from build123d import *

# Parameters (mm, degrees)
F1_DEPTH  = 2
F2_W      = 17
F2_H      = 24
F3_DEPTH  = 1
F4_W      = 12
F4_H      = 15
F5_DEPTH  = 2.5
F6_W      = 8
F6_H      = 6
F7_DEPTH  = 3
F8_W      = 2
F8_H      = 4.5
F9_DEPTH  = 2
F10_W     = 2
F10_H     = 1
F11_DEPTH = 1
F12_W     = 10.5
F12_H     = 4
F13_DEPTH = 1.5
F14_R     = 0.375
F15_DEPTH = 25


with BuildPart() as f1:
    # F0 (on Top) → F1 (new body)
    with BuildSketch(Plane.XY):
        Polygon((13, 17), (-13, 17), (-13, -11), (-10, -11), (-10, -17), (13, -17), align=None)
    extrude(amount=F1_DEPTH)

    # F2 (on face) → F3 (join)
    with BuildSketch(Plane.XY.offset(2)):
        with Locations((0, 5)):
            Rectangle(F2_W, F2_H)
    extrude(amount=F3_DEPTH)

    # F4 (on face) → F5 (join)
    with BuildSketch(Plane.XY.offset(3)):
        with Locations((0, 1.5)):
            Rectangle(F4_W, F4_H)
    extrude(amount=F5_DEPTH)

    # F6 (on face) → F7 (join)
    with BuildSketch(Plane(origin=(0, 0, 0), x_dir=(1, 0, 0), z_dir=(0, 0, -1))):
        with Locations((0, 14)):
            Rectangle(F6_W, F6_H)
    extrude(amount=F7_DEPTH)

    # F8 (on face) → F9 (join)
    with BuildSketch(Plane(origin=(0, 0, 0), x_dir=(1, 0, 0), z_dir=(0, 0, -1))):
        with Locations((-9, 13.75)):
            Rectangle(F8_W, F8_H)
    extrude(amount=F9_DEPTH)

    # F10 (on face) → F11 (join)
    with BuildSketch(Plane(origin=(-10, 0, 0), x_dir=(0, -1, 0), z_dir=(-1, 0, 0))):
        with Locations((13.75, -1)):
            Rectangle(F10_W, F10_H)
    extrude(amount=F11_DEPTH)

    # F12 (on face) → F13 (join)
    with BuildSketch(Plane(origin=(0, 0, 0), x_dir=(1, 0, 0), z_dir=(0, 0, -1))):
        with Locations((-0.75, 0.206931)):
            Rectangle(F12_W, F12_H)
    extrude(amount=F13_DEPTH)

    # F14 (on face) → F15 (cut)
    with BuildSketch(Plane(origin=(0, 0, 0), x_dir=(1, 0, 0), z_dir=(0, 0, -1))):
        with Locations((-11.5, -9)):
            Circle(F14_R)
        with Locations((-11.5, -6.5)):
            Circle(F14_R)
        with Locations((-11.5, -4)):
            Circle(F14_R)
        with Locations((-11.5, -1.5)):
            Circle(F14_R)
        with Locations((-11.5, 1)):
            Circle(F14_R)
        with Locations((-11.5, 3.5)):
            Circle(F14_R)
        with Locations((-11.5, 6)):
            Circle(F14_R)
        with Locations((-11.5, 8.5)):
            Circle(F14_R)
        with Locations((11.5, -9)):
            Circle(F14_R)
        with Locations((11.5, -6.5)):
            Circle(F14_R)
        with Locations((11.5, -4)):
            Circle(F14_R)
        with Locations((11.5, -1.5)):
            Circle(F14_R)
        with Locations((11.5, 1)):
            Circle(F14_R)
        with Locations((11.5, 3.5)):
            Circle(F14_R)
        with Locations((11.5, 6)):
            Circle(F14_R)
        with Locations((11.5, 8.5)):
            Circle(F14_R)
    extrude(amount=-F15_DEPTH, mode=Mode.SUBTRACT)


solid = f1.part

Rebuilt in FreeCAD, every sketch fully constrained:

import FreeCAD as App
import Part
import Sketcher
Q = App.Units.Quantity


def add_polygon(sketch, points):
    """Adds a closed chain of lines whose ends are joined by coincident constraints."""
    first, n = sketch.GeometryCount, len(points)
    for a, b in zip(points, points[1:] + points[:1]):
        sketch.addGeometry(Part.LineSegment(App.Vector(*a, 0), App.Vector(*b, 0)), False)
    for i in range(n):
        sketch.addConstraint(Sketcher.Constraint("Coincident", first + i, 2, first + (i + 1) % n, 1))

doc = App.newDocument("Part")
params = doc.addObject("Spreadsheet::Sheet", "Params")
for row, (alias, value) in enumerate([
    ("sketch1_width", "26 mm"),
    ("sketch1_width2", "3 mm"),
    ("sketch1_height", "28 mm"),
    ("sketch1_height2", "6 mm"),
    ("pad1_length", "2 mm"),
    ("sketch2_width", "17 mm"),
    ("sketch2_height", "24 mm"),
    ("pad2_length", "1 mm"),
    ("sketch3_width", "12 mm"),
    ("sketch3_height", "15 mm"),
    ("pad3_length", "2.5 mm"),
    ("sketch4_width", "8 mm"),
    ("sketch4_height", "6 mm"),
    ("pad4_length", "3 mm"),
    ("sketch5_width", "2 mm"),
    ("sketch5_height", "4.5 mm"),
    ("pad5_length", "2 mm"),
    ("sketch6_width", "2 mm"),
    ("sketch6_height", "1 mm"),
    ("pad6_length", "1 mm"),
    ("sketch7_height", "4 mm"),
    ("sketch7_width", "10.5 mm"),
    ("pad7_length", "1.5 mm"),
    ("sketch8_diameter", "0.75 mm"),
    ("pocket1_length", "25 mm"),
], start=1):
    params.set(f"A{row}", alias)
    params.set(f"B{row}", "=" + value)
    params.setAlias(f"B{row}", alias)

body = doc.addObject("PartDesign::Body", "Body")

sketch1 = body.newObject("Sketcher::SketchObject", "Sketch")
sketch1.AttachmentSupport = (doc.getObject("XY_Plane"), [""])
sketch1.MapMode = "FlatFace"
add_polygon(sketch1, [(13, 17), (-13, 17), (-13, -11), (-10, -11), (-10, -17), (13, -17)])
sketch1.addConstraint(Sketcher.Constraint("Horizontal", 0))
sketch1.addConstraint(Sketcher.Constraint("Vertical", 1))
sketch1.addConstraint(Sketcher.Constraint("Horizontal", 2))
sketch1.addConstraint(Sketcher.Constraint("Vertical", 3))
sketch1.addConstraint(Sketcher.Constraint("Horizontal", 4))
sketch1.addConstraint(Sketcher.Constraint("Vertical", 5))
sketch1.addConstraint(Sketcher.Constraint("Symmetric", 0, 2, 4, 2, -1, 1))
sketch1.addConstraint(Sketcher.Constraint("DistanceX", 0, 2, 0, 1, Q("26 mm")))
sketch1.addConstraint(Sketcher.Constraint("DistanceX", 2, 1, 2, 2, Q("3 mm")))
sketch1.addConstraint(Sketcher.Constraint("DistanceY", 1, 2, 1, 1, Q("28 mm")))
sketch1.addConstraint(Sketcher.Constraint("DistanceY", 3, 2, 3, 1, Q("6 mm")))
sketch1.setExpression("Constraints[13]", "Params.sketch1_width")
sketch1.setExpression("Constraints[14]", "Params.sketch1_width2")
sketch1.setExpression("Constraints[15]", "Params.sketch1_height")
sketch1.setExpression("Constraints[16]", "Params.sketch1_height2")
pad1 = body.newObject("PartDesign::Pad", "Pad")
pad1.Profile = sketch1
pad1.setExpression("Length", "Params.pad1_length")

sketch2 = body.newObject("Sketcher::SketchObject", "Sketch001")
sketch2.AttachmentSupport = (doc.getObject("XY_Plane"), [""])
sketch2.MapMode = "FlatFace"
sketch2.AttachmentOffset = App.Placement(App.Vector(0, 0, 2), App.Rotation())
add_polygon(sketch2, [(-8, 17), (-8, -7), (8, -7), (8, 17)])
sketch2.addConstraint(Sketcher.Constraint("Vertical", 0))
sketch2.addConstraint(Sketcher.Constraint("Horizontal", 1))
sketch2.addConstraint(Sketcher.Constraint("Vertical", 2))
sketch2.addConstraint(Sketcher.Constraint("Horizontal", 3))
sketch2.addConstraint(Sketcher.Constraint("DistanceX", 1, 1, 1, 2, Q("17 mm")))
sketch2.addConstraint(Sketcher.Constraint("DistanceY", 0, 2, 0, 1, Q("24 mm")))
sketch2.addConstraint(Sketcher.Constraint("DistanceY", 0, 2, -1, 1, Q("7 mm")))
sketch2.addConstraint(Sketcher.Constraint("DistanceX", 0, 2, -1, 1, Q("8.5 mm")))
sketch2.setExpression("Constraints[8]", "Params.sketch2_width")
sketch2.setExpression("Constraints[9]", "Params.sketch2_height")
pad2 = body.newObject("PartDesign::Pad", "Pad001")
pad2.Profile = sketch2
pad2.setExpression("Length", "Params.pad2_length")

sketch3 = body.newObject("Sketcher::SketchObject", "Sketch002")
sketch3.AttachmentSupport = (doc.getObject("XY_Plane"), [""])
sketch3.MapMode = "FlatFace"
sketch3.AttachmentOffset = App.Placement(App.Vector(0, 0, 3), App.Rotation())
add_polygon(sketch3, [(-6, 9), (-6, -6), (6, -6), (6, 9)])
sketch3.addConstraint(Sketcher.Constraint("Vertical", 0))
sketch3.addConstraint(Sketcher.Constraint("Horizontal", 1))
sketch3.addConstraint(Sketcher.Constraint("Vertical", 2))
sketch3.addConstraint(Sketcher.Constraint("Horizontal", 3))
sketch3.addConstraint(Sketcher.Constraint("DistanceX", 1, 1, 1, 2, Q("12 mm")))
sketch3.addConstraint(Sketcher.Constraint("DistanceY", 0, 2, 0, 1, Q("15 mm")))
sketch3.addConstraint(Sketcher.Constraint("DistanceX", 0, 2, -1, 1, Q("6 mm")))
sketch3.addConstraint(Sketcher.Constraint("DistanceY", 0, 2, -1, 1, Q("6 mm")))
sketch3.setExpression("Constraints[8]", "Params.sketch3_width")
sketch3.setExpression("Constraints[9]", "Params.sketch3_height")
pad3 = body.newObject("PartDesign::Pad", "Pad002")
pad3.Profile = sketch3
pad3.setExpression("Length", "Params.pad3_length")

sketch4 = body.newObject("Sketcher::SketchObject", "Sketch003")
sketch4.AttachmentSupport = (doc.getObject("XY_Plane"), [""])
sketch4.MapMode = "FlatFace"
add_polygon(sketch4, [(-4, -17), (-4, -11), (4, -11), (4, -17)])
sketch4.addConstraint(Sketcher.Constraint("Vertical", 0))
sketch4.addConstraint(Sketcher.Constraint("Horizontal", 1))
sketch4.addConstraint(Sketcher.Constraint("Vertical", 2))
sketch4.addConstraint(Sketcher.Constraint("Horizontal", 3))
sketch4.addConstraint(Sketcher.Constraint("DistanceX", 1, 1, 1, 2, Q("8 mm")))
sketch4.addConstraint(Sketcher.Constraint("DistanceY", 0, 1, 0, 2, Q("6 mm")))
sketch4.addConstraint(Sketcher.Constraint("DistanceX", 0, 2, -1, 1, Q("4 mm")))
sketch4.addConstraint(Sketcher.Constraint("DistanceY", 0, 2, -1, 1, Q("11 mm")))
sketch4.setExpression("Constraints[8]", "Params.sketch4_width")
sketch4.setExpression("Constraints[9]", "Params.sketch4_height")
pad4 = body.newObject("PartDesign::Pad", "Pad003")
pad4.Profile = sketch4
pad4.setExpression("Length", "Params.pad4_length")
pad4.Reversed = True

sketch5 = body.newObject("Sketcher::SketchObject", "Sketch004")
sketch5.AttachmentSupport = (doc.getObject("XY_Plane"), [""])
sketch5.MapMode = "FlatFace"
add_polygon(sketch5, [(-10, -16), (-10, -11.5), (-8, -11.5), (-8, -16)])
sketch5.addConstraint(Sketcher.Constraint("Vertical", 0))
sketch5.addConstraint(Sketcher.Constraint("Horizontal", 1))
sketch5.addConstraint(Sketcher.Constraint("Vertical", 2))
sketch5.addConstraint(Sketcher.Constraint("Horizontal", 3))
sketch5.addConstraint(Sketcher.Constraint("DistanceX", 1, 1, 1, 2, Q("2 mm")))
sketch5.addConstraint(Sketcher.Constraint("DistanceY", 0, 1, 0, 2, Q("4.5 mm")))
sketch5.addConstraint(Sketcher.Constraint("DistanceX", 0, 2, -1, 1, Q("10 mm")))
sketch5.addConstraint(Sketcher.Constraint("DistanceY", 2, 2, -1, 1, Q("16 mm")))
sketch5.setExpression("Constraints[8]", "Params.sketch5_width")
sketch5.setExpression("Constraints[9]", "Params.sketch5_height")
pad5 = body.newObject("PartDesign::Pad", "Pad004")
pad5.Profile = sketch5
pad5.setExpression("Length", "Params.pad5_length")
pad5.Reversed = True

sketch6 = body.newObject("Sketcher::SketchObject", "Sketch005")
sketch6.AttachmentSupport = (doc.getObject("YZ_Plane"), [""])
sketch6.MapMode = "FlatFace"
sketch6.AttachmentOffset = App.Placement(App.Vector(0, 0, -10), App.Rotation())
add_polygon(sketch6, [(-12.8, -0.5), (-12.8, -1.5), (-14.8, -1.5), (-14.8, -0.5)])
sketch6.addConstraint(Sketcher.Constraint("Vertical", 0))
sketch6.addConstraint(Sketcher.Constraint("Horizontal", 1))
sketch6.addConstraint(Sketcher.Constraint("Vertical", 2))
sketch6.addConstraint(Sketcher.Constraint("Horizontal", 3))
sketch6.addConstraint(Sketcher.Constraint("DistanceX", 1, 2, 1, 1, Q("2 mm")))
sketch6.addConstraint(Sketcher.Constraint("DistanceY", 0, 2, 0, 1, Q("1 mm")))
sketch6.addConstraint(Sketcher.Constraint("DistanceY", 0, 2, -1, 1, Q("1.5 mm")))
sketch6.addConstraint(Sketcher.Constraint("DistanceX", 0, 2, -1, 1, Q("12.75 mm")))
sketch6.setExpression("Constraints[8]", "Params.sketch6_width")
sketch6.setExpression("Constraints[9]", "Params.sketch6_height")
pad6 = body.newObject("PartDesign::Pad", "Pad005")
pad6.Profile = sketch6
pad6.setExpression("Length", "Params.pad6_length")
pad6.Reversed = True

sketch7 = body.newObject("Sketcher::SketchObject", "Sketch006")
sketch7.AttachmentSupport = (doc.getObject("XY_Plane"), [""])
sketch7.MapMode = "FlatFace"
add_polygon(sketch7, [(-6, -2.2), (-6, 1.8), (4.5, 1.8), (4.5, -2.2)])
sketch7.addConstraint(Sketcher.Constraint("Vertical", 0))
sketch7.addConstraint(Sketcher.Constraint("Horizontal", 1))
sketch7.addConstraint(Sketcher.Constraint("Vertical", 2))
sketch7.addConstraint(Sketcher.Constraint("Horizontal", 3))
sketch7.addConstraint(Sketcher.Constraint("DistanceY", 0, 1, 0, 2, Q("4 mm")))
sketch7.addConstraint(Sketcher.Constraint("DistanceX", 1, 1, 1, 2, Q("10.5 mm")))
sketch7.addConstraint(Sketcher.Constraint("DistanceX", 0, 2, -1, 1, Q("6 mm")))
sketch7.addConstraint(Sketcher.Constraint("DistanceY", -1, 1, 0, 2, Q("1.793069 mm")))
sketch7.setExpression("Constraints[8]", "Params.sketch7_height")
sketch7.setExpression("Constraints[9]", "Params.sketch7_width")
pad7 = body.newObject("PartDesign::Pad", "Pad006")
pad7.Profile = sketch7
pad7.setExpression("Length", "Params.pad7_length")
pad7.Reversed = True

sketch8 = body.newObject("Sketcher::SketchObject", "Sketch007")
sketch8.AttachmentSupport = (doc.getObject("XY_Plane"), [""])
sketch8.MapMode = "FlatFace"
sketch8.addGeometry(Part.Circle(App.Vector(-11.5, 9, 0), App.Vector(0, 0, 1), 0.38), False)
sketch8.addGeometry(Part.Circle(App.Vector(-11.5, 6.5, 0), App.Vector(0, 0, 1), 0.38), False)
sketch8.addGeometry(Part.Circle(App.Vector(-11.5, 4, 0), App.Vector(0, 0, 1), 0.38), False)
sketch8.addGeometry(Part.Circle(App.Vector(-11.5, 1.5, 0), App.Vector(0, 0, 1), 0.38), False)
sketch8.addGeometry(Part.Circle(App.Vector(-11.5, -1, 0), App.Vector(0, 0, 1), 0.38), False)
sketch8.addGeometry(Part.Circle(App.Vector(-11.5, -3.5, 0), App.Vector(0, 0, 1), 0.38), False)
sketch8.addGeometry(Part.Circle(App.Vector(-11.5, -6, 0), App.Vector(0, 0, 1), 0.38), False)
sketch8.addGeometry(Part.Circle(App.Vector(-11.5, -8.5, 0), App.Vector(0, 0, 1), 0.38), False)
sketch8.addGeometry(Part.Circle(App.Vector(11.5, 9, 0), App.Vector(0, 0, 1), 0.38), False)
sketch8.addGeometry(Part.Circle(App.Vector(11.5, 6.5, 0), App.Vector(0, 0, 1), 0.38), False)
sketch8.addGeometry(Part.Circle(App.Vector(11.5, 4, 0), App.Vector(0, 0, 1), 0.38), False)
sketch8.addGeometry(Part.Circle(App.Vector(11.5, 1.5, 0), App.Vector(0, 0, 1), 0.38), False)
sketch8.addGeometry(Part.Circle(App.Vector(11.5, -1, 0), App.Vector(0, 0, 1), 0.38), False)
sketch8.addGeometry(Part.Circle(App.Vector(11.5, -3.5, 0), App.Vector(0, 0, 1), 0.38), False)
sketch8.addGeometry(Part.Circle(App.Vector(11.5, -6, 0), App.Vector(0, 0, 1), 0.38), False)
sketch8.addGeometry(Part.Circle(App.Vector(11.5, -8.5, 0), App.Vector(0, 0, 1), 0.38), False)
sketch8.addConstraint(Sketcher.Constraint("Equal", 0, 1))
sketch8.addConstraint(Sketcher.Constraint("Equal", 1, 2))
sketch8.addConstraint(Sketcher.Constraint("Equal", 2, 3))
sketch8.addConstraint(Sketcher.Constraint("Equal", 3, 4))
sketch8.addConstraint(Sketcher.Constraint("Equal", 4, 5))
sketch8.addConstraint(Sketcher.Constraint("Equal", 5, 6))
sketch8.addConstraint(Sketcher.Constraint("Equal", 6, 7))
sketch8.addConstraint(Sketcher.Constraint("Equal", 7, 8))
sketch8.addConstraint(Sketcher.Constraint("Equal", 8, 9))
sketch8.addConstraint(Sketcher.Constraint("Equal", 9, 10))
sketch8.addConstraint(Sketcher.Constraint("Equal", 10, 11))
sketch8.addConstraint(Sketcher.Constraint("Equal", 11, 12))
sketch8.addConstraint(Sketcher.Constraint("Equal", 12, 13))
sketch8.addConstraint(Sketcher.Constraint("Equal", 13, 14))
sketch8.addConstraint(Sketcher.Constraint("Equal", 14, 15))
sketch8.addConstraint(Sketcher.Constraint("Symmetric", 0, 3, 8, 3, -2))
sketch8.addConstraint(Sketcher.Constraint("Symmetric", 1, 3, 9, 3, -2))
sketch8.addConstraint(Sketcher.Constraint("Symmetric", 2, 3, 10, 3, -2))
sketch8.addConstraint(Sketcher.Constraint("Symmetric", 3, 3, 11, 3, -2))
sketch8.addConstraint(Sketcher.Constraint("Symmetric", 4, 3, 12, 3, -2))
sketch8.addConstraint(Sketcher.Constraint("Symmetric", 5, 3, 13, 3, -2))
sketch8.addConstraint(Sketcher.Constraint("Symmetric", 6, 3, 14, 3, -2))
sketch8.addConstraint(Sketcher.Constraint("Symmetric", 7, 3, 15, 3, -2))
sketch8.addConstraint(Sketcher.Constraint("Vertical", 0, 3, 1, 3))
sketch8.addConstraint(Sketcher.Constraint("Vertical", 1, 3, 2, 3))
sketch8.addConstraint(Sketcher.Constraint("Vertical", 2, 3, 3, 3))
sketch8.addConstraint(Sketcher.Constraint("Vertical", 3, 3, 4, 3))
sketch8.addConstraint(Sketcher.Constraint("Vertical", 4, 3, 5, 3))
sketch8.addConstraint(Sketcher.Constraint("Vertical", 5, 3, 6, 3))
sketch8.addConstraint(Sketcher.Constraint("Vertical", 6, 3, 7, 3))
sketch8.addConstraint(Sketcher.Constraint("Diameter", 0, Q("0.75 mm")))
sketch8.addConstraint(Sketcher.Constraint("DistanceY", -1, 1, 0, 3, Q("9 mm")))
sketch8.addConstraint(Sketcher.Constraint("DistanceY", -1, 1, 2, 3, Q("4 mm")))
sketch8.addConstraint(Sketcher.Constraint("DistanceY", 4, 3, -1, 1, Q("1 mm")))
sketch8.addConstraint(Sketcher.Constraint("DistanceY", 6, 3, -1, 1, Q("6 mm")))
sketch8.addConstraint(Sketcher.Constraint("DistanceY", 3, 3, 1, 3, Q("5 mm")))
sketch8.addConstraint(Sketcher.Constraint("DistanceY", 5, 3, 3, 3, Q("5 mm")))
sketch8.addConstraint(Sketcher.Constraint("DistanceY", 7, 3, 5, 3, Q("5 mm")))
sketch8.addConstraint(Sketcher.Constraint("DistanceX", 0, 3, 8, 3, Q("23 mm")))
sketch8.addConstraint(Sketcher.Constraint("DistanceY", -1, 1, 1, 3, Q("6.5 mm")))
sketch8.setExpression("Constraints[30]", "Params.sketch8_diameter")
pocket1 = body.newObject("PartDesign::Pocket", "Pocket")
pocket1.Profile = sketch8
pocket1.setExpression("Length", "Params.pocket1_length")
pocket1.Reversed = True

doc.recompute()
